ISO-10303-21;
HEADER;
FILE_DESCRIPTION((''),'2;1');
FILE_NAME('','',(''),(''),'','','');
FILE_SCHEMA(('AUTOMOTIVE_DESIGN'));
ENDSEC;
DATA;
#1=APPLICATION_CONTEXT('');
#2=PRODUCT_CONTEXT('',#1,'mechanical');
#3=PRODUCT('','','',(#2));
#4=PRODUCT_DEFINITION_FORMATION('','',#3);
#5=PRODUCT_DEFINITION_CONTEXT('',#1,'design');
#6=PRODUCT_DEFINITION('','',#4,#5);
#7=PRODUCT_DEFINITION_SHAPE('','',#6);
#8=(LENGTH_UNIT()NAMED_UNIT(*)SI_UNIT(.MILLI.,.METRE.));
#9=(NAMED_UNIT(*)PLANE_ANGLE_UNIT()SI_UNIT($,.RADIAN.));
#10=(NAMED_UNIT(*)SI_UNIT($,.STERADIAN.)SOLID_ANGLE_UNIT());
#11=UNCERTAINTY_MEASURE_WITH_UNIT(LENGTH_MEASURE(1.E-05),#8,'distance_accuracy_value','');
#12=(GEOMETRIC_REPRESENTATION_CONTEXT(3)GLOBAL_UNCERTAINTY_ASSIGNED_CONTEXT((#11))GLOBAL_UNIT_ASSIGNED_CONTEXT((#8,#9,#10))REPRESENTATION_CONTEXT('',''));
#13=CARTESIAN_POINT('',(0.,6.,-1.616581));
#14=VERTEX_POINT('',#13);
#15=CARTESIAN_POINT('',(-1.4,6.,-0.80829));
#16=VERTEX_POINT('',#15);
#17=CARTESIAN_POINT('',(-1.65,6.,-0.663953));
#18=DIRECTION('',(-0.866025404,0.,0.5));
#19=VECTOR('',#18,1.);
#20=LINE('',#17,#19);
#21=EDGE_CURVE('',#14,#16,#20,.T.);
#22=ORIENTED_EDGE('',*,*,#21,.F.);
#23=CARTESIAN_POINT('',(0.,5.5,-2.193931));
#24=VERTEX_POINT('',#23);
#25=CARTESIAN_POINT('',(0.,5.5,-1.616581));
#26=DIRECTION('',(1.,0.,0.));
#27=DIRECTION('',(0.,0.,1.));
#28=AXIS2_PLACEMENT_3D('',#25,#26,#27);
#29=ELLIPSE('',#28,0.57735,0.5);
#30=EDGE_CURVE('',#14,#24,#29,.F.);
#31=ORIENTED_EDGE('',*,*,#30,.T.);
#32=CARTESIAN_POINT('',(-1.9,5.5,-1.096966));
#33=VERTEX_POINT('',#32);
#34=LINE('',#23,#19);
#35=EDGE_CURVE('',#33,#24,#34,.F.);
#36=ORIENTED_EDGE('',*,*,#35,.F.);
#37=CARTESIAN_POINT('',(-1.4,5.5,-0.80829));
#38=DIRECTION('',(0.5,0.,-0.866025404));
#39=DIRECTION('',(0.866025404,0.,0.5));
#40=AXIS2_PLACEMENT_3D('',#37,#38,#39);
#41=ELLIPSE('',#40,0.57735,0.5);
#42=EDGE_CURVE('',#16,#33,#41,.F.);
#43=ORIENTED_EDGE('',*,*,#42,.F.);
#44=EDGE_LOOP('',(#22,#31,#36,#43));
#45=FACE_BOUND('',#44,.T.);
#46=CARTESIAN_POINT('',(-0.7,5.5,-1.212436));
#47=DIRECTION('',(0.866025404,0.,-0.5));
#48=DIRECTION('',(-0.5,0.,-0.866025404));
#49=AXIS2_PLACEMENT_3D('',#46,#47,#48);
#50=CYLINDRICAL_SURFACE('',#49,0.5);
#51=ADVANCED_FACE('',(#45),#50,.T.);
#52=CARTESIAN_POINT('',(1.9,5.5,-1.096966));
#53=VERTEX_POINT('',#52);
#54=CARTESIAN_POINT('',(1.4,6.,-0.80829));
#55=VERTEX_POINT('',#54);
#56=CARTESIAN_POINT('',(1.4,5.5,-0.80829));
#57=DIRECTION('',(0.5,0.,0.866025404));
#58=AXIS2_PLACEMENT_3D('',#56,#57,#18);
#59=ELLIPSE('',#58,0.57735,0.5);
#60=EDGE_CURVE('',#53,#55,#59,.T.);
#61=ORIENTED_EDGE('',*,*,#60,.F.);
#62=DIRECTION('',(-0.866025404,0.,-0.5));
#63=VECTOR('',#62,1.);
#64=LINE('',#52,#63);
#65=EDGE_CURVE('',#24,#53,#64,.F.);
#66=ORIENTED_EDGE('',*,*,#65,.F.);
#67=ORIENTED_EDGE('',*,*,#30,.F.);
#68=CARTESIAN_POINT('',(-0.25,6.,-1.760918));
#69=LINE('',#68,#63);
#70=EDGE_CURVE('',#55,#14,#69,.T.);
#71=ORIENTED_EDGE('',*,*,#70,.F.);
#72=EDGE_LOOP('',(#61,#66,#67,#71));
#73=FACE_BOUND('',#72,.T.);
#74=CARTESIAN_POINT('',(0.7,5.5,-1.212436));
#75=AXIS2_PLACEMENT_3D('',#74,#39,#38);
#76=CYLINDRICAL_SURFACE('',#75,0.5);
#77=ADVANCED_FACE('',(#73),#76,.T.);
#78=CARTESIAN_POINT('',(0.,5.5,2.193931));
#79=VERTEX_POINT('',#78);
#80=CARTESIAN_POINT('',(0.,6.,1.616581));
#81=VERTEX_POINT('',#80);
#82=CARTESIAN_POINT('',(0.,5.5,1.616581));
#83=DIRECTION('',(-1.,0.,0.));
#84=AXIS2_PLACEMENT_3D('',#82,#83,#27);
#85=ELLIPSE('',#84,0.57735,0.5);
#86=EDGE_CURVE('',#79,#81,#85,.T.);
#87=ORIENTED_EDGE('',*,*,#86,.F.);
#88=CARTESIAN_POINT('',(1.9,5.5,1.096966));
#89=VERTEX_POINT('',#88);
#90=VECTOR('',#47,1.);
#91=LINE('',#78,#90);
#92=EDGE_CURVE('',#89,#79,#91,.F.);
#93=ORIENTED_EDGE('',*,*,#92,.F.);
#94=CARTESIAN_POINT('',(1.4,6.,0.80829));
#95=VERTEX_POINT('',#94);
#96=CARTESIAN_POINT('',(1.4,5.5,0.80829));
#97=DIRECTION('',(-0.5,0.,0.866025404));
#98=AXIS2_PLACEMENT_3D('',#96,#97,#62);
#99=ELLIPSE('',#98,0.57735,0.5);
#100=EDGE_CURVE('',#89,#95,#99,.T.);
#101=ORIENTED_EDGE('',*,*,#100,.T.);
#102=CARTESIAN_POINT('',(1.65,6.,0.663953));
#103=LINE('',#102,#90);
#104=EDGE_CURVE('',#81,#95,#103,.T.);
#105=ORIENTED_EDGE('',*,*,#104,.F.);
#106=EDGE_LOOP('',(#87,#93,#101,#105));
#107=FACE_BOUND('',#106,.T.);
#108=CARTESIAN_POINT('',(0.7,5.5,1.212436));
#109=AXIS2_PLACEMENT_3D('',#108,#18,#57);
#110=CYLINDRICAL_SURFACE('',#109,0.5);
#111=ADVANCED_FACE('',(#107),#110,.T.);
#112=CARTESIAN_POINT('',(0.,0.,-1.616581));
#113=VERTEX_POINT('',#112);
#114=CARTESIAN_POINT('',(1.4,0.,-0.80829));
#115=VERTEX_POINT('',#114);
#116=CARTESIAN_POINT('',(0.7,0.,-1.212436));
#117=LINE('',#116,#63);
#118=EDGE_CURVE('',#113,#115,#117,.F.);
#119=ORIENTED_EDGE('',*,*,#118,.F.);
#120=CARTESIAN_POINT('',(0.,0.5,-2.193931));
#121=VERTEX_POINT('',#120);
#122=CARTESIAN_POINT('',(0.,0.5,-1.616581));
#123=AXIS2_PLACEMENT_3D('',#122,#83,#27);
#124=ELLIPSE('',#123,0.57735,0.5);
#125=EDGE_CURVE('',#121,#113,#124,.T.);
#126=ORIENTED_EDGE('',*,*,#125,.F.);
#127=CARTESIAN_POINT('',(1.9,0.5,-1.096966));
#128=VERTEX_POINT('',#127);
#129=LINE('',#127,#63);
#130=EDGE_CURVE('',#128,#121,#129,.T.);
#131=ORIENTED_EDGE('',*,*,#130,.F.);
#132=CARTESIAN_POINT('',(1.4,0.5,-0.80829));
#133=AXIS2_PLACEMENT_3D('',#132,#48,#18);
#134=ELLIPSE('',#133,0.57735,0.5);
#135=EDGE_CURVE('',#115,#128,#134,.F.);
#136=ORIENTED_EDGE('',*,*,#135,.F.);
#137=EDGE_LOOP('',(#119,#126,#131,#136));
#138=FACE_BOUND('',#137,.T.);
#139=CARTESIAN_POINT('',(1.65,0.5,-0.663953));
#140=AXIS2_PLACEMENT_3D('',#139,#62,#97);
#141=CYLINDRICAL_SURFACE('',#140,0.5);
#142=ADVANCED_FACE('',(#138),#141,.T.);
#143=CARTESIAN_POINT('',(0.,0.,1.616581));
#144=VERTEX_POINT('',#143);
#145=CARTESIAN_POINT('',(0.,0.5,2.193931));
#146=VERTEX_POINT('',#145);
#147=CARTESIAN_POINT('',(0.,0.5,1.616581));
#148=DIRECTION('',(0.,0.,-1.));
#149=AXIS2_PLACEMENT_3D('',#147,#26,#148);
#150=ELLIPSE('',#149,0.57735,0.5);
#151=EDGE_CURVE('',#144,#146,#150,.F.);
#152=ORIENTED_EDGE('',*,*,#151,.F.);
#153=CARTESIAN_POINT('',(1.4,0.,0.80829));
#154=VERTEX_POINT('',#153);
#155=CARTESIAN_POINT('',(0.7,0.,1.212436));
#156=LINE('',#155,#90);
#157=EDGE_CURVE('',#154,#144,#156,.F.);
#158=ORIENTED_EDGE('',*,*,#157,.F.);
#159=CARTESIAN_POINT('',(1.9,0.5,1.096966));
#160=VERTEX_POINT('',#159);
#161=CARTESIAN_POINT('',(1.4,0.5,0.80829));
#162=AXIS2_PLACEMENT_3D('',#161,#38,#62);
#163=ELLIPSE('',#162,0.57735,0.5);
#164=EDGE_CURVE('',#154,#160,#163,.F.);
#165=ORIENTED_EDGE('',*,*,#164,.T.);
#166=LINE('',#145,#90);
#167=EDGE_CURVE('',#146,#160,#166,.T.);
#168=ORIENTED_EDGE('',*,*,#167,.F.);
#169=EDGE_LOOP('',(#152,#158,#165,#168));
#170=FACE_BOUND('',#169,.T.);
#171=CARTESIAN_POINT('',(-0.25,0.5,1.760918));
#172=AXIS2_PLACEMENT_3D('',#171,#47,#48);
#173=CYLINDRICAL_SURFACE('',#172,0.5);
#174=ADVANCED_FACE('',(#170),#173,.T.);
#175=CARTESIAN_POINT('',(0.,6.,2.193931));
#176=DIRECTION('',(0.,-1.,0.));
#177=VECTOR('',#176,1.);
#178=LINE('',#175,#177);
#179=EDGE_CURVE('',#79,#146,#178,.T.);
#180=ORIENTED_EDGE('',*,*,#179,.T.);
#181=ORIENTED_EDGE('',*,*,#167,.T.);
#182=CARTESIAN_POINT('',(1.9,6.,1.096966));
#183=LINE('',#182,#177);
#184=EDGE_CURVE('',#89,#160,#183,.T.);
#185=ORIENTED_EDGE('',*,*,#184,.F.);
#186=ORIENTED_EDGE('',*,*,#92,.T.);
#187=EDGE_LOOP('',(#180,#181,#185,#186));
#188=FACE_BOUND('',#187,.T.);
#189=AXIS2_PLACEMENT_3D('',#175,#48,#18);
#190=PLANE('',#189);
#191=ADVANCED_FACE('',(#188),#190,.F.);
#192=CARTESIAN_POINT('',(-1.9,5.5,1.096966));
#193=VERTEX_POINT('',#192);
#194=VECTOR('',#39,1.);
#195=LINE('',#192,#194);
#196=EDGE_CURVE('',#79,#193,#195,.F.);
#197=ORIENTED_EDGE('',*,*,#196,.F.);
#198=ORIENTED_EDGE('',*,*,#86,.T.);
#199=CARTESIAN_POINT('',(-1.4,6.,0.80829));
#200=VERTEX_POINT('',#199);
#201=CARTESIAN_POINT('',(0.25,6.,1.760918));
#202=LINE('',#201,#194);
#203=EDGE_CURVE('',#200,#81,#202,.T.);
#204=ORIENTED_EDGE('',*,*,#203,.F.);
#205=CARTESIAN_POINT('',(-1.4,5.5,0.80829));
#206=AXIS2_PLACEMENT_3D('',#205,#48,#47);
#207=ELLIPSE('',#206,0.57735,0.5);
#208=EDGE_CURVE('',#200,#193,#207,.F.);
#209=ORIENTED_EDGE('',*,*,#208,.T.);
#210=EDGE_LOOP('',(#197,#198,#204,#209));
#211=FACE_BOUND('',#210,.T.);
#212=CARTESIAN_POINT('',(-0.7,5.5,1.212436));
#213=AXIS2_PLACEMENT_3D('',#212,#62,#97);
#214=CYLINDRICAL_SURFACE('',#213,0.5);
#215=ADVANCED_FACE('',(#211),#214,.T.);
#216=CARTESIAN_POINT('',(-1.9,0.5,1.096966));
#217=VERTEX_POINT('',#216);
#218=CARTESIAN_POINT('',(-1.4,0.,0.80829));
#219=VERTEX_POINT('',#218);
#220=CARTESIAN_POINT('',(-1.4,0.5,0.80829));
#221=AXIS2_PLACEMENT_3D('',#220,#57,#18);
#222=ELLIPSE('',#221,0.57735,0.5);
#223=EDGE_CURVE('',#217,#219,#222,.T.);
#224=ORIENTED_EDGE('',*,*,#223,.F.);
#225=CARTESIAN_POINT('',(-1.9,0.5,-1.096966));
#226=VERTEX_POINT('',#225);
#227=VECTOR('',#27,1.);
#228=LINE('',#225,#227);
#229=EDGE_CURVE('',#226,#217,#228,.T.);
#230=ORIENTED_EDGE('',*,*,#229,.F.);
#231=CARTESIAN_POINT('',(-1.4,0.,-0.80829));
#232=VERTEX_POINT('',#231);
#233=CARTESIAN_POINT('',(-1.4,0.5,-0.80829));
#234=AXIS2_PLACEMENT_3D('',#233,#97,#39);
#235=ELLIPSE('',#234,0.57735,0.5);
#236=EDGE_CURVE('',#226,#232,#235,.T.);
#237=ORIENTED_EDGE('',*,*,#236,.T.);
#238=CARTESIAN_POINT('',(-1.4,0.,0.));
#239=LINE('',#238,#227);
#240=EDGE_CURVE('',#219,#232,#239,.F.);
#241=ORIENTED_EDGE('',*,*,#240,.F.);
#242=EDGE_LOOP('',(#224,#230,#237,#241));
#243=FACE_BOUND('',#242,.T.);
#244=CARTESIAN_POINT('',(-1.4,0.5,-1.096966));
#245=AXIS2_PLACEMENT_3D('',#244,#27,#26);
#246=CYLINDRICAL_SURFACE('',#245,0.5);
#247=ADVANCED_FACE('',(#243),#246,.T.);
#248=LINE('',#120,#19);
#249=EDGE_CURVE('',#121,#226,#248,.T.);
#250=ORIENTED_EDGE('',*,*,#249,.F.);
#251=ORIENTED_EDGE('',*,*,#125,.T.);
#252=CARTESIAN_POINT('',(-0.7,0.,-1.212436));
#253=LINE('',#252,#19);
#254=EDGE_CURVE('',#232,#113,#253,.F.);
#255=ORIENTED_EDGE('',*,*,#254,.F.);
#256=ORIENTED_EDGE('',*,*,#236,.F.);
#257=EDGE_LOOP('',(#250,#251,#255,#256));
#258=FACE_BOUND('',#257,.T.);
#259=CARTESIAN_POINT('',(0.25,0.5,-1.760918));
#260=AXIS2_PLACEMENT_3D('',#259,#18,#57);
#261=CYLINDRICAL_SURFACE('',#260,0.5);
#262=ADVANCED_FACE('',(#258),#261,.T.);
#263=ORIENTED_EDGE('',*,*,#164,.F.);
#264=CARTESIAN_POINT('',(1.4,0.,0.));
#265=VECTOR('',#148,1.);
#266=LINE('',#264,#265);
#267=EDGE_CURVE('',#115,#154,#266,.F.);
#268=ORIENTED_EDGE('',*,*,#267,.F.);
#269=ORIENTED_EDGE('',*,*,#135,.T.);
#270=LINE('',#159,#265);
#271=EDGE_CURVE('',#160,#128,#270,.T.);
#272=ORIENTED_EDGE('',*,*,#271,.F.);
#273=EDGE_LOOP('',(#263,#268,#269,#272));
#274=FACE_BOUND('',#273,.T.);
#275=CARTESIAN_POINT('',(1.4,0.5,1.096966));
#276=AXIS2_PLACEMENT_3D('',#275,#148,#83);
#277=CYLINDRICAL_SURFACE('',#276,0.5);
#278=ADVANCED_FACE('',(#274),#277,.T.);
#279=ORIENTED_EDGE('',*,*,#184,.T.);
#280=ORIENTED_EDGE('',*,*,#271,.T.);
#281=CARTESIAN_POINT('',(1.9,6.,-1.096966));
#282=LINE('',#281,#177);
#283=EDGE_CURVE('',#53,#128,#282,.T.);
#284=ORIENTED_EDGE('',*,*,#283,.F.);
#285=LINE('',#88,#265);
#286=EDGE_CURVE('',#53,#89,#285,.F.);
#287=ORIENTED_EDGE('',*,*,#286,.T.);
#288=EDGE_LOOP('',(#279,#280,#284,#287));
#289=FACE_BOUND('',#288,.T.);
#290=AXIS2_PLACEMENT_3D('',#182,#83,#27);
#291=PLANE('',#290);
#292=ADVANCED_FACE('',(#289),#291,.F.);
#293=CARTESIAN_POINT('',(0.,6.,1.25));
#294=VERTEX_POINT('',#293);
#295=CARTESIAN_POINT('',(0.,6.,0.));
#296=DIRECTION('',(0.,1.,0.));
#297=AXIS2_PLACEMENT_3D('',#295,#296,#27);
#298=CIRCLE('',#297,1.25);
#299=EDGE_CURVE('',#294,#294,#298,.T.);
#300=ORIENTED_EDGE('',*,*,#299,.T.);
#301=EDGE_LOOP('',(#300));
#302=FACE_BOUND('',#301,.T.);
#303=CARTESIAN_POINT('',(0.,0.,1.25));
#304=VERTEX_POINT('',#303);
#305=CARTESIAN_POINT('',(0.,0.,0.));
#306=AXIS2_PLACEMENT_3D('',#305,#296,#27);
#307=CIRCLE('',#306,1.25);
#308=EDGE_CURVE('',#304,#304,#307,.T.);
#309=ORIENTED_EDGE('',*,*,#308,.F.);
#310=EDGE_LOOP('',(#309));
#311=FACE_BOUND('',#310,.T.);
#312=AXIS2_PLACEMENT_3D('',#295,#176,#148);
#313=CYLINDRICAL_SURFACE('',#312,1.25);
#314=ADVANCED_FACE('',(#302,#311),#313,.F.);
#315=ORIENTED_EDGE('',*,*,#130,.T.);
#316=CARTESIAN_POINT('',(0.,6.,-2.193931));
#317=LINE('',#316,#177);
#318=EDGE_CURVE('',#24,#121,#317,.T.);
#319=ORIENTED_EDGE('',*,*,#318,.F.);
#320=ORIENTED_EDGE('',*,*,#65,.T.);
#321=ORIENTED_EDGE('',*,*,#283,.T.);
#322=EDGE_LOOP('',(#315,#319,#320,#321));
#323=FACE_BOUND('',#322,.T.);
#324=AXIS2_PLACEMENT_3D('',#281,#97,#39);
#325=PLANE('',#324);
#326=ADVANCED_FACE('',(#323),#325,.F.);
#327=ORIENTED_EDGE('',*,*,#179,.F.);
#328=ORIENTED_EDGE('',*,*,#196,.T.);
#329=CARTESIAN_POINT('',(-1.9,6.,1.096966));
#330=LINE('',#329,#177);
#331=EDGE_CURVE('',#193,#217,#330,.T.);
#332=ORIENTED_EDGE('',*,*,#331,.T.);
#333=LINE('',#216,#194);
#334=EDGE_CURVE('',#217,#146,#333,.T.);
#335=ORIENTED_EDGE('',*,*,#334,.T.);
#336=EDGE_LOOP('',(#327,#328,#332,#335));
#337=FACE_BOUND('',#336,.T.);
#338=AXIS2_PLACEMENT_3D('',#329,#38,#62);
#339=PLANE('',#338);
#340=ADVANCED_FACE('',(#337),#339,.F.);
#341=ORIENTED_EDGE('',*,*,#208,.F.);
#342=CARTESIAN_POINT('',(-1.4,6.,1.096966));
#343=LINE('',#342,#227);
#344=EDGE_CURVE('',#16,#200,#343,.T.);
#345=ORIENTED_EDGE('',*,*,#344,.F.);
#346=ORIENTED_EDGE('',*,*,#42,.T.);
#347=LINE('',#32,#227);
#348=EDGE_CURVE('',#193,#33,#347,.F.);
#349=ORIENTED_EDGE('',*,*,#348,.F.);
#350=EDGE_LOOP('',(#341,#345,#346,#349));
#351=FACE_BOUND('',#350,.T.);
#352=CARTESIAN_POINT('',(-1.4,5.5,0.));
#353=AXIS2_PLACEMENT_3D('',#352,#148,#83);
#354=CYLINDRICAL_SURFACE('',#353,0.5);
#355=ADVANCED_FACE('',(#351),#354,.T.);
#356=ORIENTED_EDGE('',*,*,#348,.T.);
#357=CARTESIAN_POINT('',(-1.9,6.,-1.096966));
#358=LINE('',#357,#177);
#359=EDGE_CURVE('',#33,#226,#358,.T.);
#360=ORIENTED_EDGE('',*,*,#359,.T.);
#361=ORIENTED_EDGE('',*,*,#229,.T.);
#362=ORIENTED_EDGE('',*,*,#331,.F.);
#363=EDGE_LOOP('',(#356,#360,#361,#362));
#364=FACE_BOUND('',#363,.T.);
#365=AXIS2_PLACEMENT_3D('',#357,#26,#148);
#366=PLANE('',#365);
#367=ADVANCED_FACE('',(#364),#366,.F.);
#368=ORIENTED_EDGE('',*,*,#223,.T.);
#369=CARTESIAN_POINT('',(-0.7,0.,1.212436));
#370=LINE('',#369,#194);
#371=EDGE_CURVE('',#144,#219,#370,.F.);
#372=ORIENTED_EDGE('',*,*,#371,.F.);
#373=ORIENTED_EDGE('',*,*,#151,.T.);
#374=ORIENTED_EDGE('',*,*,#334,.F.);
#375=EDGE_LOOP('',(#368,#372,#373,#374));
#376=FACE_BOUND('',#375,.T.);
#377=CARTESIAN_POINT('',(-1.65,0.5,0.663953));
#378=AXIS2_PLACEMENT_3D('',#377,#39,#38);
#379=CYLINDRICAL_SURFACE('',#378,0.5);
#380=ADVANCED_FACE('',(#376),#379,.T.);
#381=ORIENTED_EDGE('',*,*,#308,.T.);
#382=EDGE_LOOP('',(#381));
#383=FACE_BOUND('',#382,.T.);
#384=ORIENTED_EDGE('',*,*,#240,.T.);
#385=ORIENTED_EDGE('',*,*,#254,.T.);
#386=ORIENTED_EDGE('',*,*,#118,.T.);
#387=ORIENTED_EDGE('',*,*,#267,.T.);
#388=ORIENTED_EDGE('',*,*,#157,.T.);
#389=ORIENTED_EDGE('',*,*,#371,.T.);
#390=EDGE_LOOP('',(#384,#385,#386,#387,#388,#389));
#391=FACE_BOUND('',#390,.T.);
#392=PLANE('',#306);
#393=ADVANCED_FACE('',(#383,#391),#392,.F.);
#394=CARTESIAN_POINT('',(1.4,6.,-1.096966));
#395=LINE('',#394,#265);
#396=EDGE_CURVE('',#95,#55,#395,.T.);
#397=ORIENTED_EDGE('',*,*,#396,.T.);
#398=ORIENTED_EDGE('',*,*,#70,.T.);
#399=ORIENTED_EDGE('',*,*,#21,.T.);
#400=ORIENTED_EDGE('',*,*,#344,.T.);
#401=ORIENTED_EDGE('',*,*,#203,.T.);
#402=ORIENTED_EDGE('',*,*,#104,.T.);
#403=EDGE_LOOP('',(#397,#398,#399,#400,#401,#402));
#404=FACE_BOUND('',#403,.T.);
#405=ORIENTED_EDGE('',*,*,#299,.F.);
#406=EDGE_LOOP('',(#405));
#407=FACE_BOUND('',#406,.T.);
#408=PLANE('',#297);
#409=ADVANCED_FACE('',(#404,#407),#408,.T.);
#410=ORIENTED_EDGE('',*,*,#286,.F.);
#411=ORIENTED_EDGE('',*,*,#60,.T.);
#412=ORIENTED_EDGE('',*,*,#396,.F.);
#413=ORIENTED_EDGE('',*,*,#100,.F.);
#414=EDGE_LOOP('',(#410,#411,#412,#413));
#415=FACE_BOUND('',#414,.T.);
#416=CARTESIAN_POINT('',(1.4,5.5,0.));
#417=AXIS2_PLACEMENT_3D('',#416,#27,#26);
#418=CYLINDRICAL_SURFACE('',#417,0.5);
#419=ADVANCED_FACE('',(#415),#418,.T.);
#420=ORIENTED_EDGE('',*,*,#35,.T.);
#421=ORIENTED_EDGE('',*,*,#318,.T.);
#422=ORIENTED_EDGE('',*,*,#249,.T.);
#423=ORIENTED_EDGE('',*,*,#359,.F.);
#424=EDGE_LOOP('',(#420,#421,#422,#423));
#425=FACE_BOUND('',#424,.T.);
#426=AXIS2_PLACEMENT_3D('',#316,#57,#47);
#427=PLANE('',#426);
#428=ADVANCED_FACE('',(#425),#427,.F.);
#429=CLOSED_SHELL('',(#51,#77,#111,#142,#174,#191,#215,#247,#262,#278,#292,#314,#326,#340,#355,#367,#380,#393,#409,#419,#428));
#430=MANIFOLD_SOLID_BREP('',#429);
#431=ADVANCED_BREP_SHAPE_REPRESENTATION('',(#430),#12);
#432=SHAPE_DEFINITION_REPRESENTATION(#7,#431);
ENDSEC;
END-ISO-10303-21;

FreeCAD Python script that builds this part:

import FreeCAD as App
import Part
import Sketcher
from FreeCAD import Vector
Q = App.Units.Quantity


def edges_at(feature, points):
    """Names of the edges that pass closest to the given points."""
    edges = feature.Shape.Edges
    near = lambda p: min(range(len(edges)), key=lambda i: edges[i].distToShape(Part.Vertex(*p))[0])
    return sorted({f"Edge{near(p) + 1}" for p in points})


def add_polygon(sketch, points):
    """Adds a closed chain of lines whose ends are joined by coincident constraints."""
    first, n = sketch.GeometryCount, len(points)
    for a, b in zip(points, points[1:] + points[:1]):
        sketch.addGeometry(Part.LineSegment(App.Vector(*a, 0), App.Vector(*b, 0)), False)
    for i in range(n):
        sketch.addConstraint(Sketcher.Constraint("Coincident", first + i, 2, first + (i + 1) % n, 1))

doc = App.newDocument("Part")
body = doc.addObject("PartDesign::Body", "Body")

# Sketch on XZ plane
sketch1 = body.newObject("Sketcher::SketchObject", "Sketch")
sketch1.AttachmentSupport = (doc.getObject("XZ_Plane"), [""])
sketch1.MapMode = "FlatFace"
add_polygon(sketch1, [(1.9, 1.096966), (1.9, -1.096966), (0, -2.193931), (-1.9, -1.096966), (-1.9, 1.096966), (0, 2.193931)])  # lines 0-5
sketch1.addGeometry(Part.Circle(Vector(0, 0, 0), Vector(0, 0, 1), 1.25), False)  # 6
sketch1.addConstraint([
    Sketcher.Constraint("Vertical", 0),
    Sketcher.Constraint("Vertical", 3),
    Sketcher.Constraint("Coincident", 6, 3, -1, 1),
    Sketcher.Constraint("Symmetric", 0, 2, 3, 2, -1, 1),
    Sketcher.Constraint("Symmetric", 1, 2, 4, 2, -1, 1),
    Sketcher.Constraint("PointOnObject", 1, 2, -2),
    Sketcher.Constraint("Parallel", 2, 5),
    Sketcher.Constraint("Horizontal", 0, 2, 2, 2),
    Sketcher.Constraint("Diameter", 6, Q("2.5 mm")),
    Sketcher.Constraint("Angle", 1, Q("-150 deg")),
    Sketcher.Constraint("DistanceX", -1, 1, 0, 2, Q("1.9 mm")),
    Sketcher.Constraint("DistanceY", 0, 2, 0, 1, Q("2.193931 mm")),
])
pad1 = body.newObject("PartDesign::Pad", "Pad")
pad1.Profile = sketch1
pad1.Length = 6
pad1.Reversed = True
doc.recompute()

fillet = body.newObject("PartDesign::Fillet", "Fillet")
fillet.Base = (pad1, edges_at(pad1, [
    (0.95, 6, -1.645),
    (-0.95, 6, -1.645),
    (-1.9, 6, 0),
    (-0.95, 6, 1.645),
    (0.95, 6, 1.645),
    (-0.95, 0, 1.645),
    (-1.9, 0, 0),
    (-0.95, 0, -1.645),
    (0.95, 0, -1.645),
    (1.9, 0, 0),
    (0.95, 0, 1.645),
    (1.9, 6, 0),
]))
fillet.Radius = 0.5

doc.recompute()
